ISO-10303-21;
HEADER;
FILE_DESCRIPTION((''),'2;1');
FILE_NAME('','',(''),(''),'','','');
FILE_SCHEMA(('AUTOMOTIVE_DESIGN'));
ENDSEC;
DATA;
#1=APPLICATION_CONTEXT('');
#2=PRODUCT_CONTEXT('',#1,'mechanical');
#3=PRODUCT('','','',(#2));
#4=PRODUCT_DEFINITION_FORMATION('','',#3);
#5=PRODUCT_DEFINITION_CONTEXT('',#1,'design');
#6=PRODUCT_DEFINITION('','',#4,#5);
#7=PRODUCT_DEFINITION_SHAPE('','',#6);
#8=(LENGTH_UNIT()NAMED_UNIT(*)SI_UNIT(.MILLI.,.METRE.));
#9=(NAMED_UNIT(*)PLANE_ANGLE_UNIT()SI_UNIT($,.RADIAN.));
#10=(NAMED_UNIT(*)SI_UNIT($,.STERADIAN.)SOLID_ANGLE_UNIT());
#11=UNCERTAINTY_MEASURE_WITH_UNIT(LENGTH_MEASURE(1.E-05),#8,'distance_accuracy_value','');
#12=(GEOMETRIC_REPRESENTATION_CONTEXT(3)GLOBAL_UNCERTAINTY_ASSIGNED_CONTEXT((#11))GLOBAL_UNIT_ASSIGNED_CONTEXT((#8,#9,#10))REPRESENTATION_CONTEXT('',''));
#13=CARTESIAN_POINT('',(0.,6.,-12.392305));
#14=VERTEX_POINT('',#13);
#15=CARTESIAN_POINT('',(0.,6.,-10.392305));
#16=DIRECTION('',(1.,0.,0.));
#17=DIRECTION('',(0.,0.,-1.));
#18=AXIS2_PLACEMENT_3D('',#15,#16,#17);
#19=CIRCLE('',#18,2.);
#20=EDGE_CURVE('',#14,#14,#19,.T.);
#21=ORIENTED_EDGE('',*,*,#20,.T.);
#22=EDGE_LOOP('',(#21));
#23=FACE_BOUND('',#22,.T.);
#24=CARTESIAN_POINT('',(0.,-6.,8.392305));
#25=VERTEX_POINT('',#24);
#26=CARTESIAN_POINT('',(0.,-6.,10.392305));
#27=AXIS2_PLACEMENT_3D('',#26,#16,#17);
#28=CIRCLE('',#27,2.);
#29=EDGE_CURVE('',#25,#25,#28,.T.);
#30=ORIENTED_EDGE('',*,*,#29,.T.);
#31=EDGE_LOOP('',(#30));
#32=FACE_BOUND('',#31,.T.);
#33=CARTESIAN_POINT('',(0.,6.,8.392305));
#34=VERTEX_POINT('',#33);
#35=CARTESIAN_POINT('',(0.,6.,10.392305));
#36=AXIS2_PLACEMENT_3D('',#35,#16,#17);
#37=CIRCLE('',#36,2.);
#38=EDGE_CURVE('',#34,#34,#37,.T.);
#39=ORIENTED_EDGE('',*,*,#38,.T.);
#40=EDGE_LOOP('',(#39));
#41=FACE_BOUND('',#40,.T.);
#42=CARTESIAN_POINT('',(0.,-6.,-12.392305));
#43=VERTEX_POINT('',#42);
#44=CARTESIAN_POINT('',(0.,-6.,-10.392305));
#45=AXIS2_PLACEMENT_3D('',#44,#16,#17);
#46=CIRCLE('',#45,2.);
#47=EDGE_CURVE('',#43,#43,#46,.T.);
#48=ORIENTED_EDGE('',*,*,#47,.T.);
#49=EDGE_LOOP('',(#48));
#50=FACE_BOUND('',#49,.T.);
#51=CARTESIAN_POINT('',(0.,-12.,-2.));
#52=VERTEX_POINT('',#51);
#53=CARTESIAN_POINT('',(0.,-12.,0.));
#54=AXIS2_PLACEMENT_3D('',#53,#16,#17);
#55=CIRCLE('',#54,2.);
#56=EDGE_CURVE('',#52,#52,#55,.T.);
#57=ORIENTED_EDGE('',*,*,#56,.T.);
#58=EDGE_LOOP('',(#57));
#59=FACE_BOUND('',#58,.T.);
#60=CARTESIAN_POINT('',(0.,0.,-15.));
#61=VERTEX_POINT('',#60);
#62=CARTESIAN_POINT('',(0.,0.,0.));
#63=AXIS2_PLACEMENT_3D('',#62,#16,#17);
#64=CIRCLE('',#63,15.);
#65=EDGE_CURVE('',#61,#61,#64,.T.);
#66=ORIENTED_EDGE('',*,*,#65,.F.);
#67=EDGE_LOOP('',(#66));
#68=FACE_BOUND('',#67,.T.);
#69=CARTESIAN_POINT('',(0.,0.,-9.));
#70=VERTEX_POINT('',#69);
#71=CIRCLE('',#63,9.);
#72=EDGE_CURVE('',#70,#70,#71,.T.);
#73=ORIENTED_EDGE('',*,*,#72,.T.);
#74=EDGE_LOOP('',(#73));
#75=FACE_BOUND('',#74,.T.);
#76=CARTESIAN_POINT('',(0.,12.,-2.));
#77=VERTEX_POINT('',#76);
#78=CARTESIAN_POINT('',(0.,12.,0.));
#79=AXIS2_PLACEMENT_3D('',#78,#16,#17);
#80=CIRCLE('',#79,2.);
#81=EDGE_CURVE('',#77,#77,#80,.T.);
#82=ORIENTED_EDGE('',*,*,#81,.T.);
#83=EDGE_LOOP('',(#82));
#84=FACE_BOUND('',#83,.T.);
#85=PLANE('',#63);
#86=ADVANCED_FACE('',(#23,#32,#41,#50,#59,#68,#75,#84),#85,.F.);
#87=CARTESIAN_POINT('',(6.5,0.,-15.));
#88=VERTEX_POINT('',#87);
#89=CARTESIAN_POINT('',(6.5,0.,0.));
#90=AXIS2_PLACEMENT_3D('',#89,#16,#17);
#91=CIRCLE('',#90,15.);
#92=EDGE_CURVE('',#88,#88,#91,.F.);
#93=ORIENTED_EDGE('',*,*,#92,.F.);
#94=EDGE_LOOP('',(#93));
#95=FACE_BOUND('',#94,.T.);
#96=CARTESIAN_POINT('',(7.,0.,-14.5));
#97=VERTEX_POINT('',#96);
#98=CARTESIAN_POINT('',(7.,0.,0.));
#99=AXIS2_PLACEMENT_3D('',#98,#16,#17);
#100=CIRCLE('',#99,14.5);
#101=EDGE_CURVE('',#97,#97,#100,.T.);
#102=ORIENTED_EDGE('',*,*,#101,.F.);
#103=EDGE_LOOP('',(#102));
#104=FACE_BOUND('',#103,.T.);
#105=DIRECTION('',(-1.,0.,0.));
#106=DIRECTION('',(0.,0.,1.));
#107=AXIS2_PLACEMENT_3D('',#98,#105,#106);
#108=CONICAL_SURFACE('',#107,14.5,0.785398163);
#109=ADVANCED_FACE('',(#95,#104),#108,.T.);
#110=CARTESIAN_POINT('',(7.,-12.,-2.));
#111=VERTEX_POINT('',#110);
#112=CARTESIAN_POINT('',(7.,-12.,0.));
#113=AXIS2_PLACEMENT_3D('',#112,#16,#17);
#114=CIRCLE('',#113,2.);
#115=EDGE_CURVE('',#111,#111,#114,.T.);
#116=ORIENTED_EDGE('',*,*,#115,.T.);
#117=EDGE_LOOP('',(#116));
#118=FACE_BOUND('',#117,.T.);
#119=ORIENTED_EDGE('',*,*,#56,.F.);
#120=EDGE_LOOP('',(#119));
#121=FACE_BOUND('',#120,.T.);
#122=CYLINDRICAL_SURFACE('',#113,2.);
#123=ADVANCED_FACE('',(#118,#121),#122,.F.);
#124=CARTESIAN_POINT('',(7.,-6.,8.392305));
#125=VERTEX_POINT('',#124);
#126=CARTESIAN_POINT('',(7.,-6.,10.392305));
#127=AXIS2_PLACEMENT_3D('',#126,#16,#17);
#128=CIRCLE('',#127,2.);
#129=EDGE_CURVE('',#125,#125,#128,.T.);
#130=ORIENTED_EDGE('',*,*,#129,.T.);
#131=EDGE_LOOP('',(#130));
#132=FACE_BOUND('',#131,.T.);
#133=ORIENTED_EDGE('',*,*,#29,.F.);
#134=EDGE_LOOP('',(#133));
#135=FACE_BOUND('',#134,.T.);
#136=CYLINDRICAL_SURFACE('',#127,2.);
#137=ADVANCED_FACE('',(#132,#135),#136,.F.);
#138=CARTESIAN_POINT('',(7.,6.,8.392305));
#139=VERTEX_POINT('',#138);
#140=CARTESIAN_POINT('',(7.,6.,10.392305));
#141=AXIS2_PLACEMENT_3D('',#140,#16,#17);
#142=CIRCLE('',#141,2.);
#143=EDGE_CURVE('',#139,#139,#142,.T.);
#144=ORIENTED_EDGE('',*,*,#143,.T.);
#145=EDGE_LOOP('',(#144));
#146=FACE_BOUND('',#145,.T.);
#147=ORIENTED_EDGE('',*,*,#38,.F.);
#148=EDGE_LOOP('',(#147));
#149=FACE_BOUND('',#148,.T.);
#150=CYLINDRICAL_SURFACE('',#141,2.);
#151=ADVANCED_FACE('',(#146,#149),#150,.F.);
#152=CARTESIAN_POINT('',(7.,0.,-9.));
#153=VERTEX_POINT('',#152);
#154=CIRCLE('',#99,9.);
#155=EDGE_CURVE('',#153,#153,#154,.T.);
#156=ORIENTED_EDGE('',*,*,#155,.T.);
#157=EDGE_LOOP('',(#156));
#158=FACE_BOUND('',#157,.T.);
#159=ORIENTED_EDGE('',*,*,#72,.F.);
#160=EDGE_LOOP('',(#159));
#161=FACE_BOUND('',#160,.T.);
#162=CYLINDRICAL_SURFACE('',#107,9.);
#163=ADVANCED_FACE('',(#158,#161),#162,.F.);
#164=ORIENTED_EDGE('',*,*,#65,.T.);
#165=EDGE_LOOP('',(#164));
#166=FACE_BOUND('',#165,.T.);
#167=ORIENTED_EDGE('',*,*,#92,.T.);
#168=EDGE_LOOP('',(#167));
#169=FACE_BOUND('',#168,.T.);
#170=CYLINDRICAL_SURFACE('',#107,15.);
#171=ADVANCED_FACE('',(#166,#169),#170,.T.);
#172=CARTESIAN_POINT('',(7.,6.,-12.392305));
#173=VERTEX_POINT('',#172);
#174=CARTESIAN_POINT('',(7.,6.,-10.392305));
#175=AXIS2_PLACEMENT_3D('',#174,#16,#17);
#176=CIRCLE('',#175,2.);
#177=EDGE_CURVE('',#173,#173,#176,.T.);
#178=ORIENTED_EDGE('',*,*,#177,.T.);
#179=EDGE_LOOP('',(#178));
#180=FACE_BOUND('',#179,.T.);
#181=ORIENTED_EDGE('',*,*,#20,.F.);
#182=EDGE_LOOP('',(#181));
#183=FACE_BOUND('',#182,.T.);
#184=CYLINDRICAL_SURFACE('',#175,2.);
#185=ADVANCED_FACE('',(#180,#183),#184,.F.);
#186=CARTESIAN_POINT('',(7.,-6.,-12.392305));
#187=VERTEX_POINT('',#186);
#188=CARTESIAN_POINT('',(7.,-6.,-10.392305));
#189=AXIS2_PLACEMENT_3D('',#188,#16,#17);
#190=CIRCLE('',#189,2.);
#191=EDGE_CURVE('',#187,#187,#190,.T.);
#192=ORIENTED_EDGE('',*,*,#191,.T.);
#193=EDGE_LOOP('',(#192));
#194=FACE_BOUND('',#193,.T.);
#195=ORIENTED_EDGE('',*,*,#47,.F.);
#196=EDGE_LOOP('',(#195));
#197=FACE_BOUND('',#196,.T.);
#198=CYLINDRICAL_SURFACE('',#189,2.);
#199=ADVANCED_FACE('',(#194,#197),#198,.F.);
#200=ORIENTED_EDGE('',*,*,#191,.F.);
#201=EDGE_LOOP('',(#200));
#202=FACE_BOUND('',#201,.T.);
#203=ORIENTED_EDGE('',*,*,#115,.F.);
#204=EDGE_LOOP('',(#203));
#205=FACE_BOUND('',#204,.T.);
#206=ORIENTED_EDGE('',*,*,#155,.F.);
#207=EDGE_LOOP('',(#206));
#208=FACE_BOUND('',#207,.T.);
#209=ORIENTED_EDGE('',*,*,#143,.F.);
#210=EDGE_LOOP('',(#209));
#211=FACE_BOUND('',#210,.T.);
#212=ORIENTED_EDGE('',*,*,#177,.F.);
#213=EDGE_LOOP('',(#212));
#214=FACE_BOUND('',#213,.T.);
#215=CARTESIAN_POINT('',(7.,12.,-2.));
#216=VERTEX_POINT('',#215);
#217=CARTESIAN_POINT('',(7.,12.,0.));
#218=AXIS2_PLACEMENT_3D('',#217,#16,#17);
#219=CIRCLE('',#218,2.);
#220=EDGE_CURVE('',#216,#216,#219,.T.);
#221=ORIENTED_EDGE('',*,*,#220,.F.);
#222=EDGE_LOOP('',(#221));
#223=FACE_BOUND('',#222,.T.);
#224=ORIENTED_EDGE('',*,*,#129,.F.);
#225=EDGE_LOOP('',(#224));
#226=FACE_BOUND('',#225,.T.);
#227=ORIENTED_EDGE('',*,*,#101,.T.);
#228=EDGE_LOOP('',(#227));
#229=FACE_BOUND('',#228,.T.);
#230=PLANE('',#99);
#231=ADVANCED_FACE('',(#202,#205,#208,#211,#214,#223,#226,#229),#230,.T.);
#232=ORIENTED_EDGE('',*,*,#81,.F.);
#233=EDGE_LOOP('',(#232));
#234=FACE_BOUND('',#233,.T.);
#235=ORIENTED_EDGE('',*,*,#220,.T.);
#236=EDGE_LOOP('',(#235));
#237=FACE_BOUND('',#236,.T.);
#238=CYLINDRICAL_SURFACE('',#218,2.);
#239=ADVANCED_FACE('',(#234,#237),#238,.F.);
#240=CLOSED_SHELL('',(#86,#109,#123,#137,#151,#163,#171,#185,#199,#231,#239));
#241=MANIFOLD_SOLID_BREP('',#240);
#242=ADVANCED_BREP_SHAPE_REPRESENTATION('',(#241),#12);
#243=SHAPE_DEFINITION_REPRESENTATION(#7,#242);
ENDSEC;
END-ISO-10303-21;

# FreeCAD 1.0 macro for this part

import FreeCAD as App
import Part
import Sketcher
Q = App.Units.Quantity


def edges_at(feature, points):
    """Names of the edges that pass closest to the given points."""
    edges = feature.Shape.Edges
    near = lambda p: min(range(len(edges)), key=lambda i: edges[i].distToShape(Part.Vertex(*p))[0])
    return sorted({f"Edge{near(p) + 1}" for p in points})

doc = App.newDocument("Part")
body = doc.addObject("PartDesign::Body", "Body")

# Sketch on YZ plane
sketch1 = body.newObject("Sketcher::SketchObject", "Sketch")
sketch1.AttachmentSupport = (doc.getObject("YZ_Plane"), [""])
sketch1.MapMode = "FlatFace"
sketch1.addGeometry([
    Part.Circle(App.Vector(0, 0, 0), App.Vector(0, 0, 1), 15),
    Part.Circle(App.Vector(0, 0, 0), App.Vector(0, 0, 1), 9),
], False)
sketch1.addConstraint([
    Sketcher.Constraint("Coincident", 0, 3, -1, 1),
    Sketcher.Constraint("Coincident", 1, 3, -1, 1),
    Sketcher.Constraint("Diameter", 0, 30.0),
    Sketcher.Constraint("Diameter", 1, 18.0),
])
pad1 = body.newObject("PartDesign::Pad", "Pad")
pad1.Profile = sketch1
pad1.Length = 7

# Sketch on XZ plane
sketch2 = body.newObject("Sketcher::SketchObject", "Sketch001")
sketch2.AttachmentSupport = (doc.getObject("XZ_Plane"), [""])
sketch2.MapMode = "FlatFace"
sketch2.AttachmentOffset = App.Placement(App.Vector(0, 0, -12), App.Rotation())
sketch2.addGeometry([
    Part.LineSegment(App.Vector(-44.201721, 0, 0), App.Vector(7, 0, 0)),
    Part.LineSegment(App.Vector(7, 0, 0), App.Vector(7, -2, 0)),
    Part.LineSegment(App.Vector(7, -2, 0), App.Vector(-43, -2, 0)),
    Part.LineSegment(App.Vector(-43, -2, 0), App.Vector(-44.201721, 0, 0)),
], False)
sketch2.addConstraint([
    Sketcher.Constraint("Coincident", 0, 2, 1, 1),
    Sketcher.Constraint("Coincident", 1, 2, 2, 1),
    Sketcher.Constraint("Coincident", 2, 2, 3, 1),
    Sketcher.Constraint("Coincident", 3, 2, 0, 1),
    Sketcher.Constraint("Horizontal", 0),
    Sketcher.Constraint("Vertical", 1),
    Sketcher.Constraint("Horizontal", 2),
    Sketcher.Constraint("PointOnObject", 0, 2, -1),
    Sketcher.Constraint("DistanceX", 2, 2, 2, 1, 50.0),
    Sketcher.Constraint("DistanceY", 1, 2, 1, 1, 2.0),
    Sketcher.Constraint("Angle", 3, Q("121 deg")),
    Sketcher.Constraint("DistanceX", -1, 1, 0, 2, 7.0),
])
groove = body.newObject("PartDesign::Groove", "Groove")
groove.Profile = sketch2
groove.ReferenceAxis = (sketch2, ["H_Axis"])
groove.Angle = 360
doc.recompute()

polarpattern = body.newObject("PartDesign::PolarPattern", "PolarPattern")
polarpattern.Originals = [groove]
polarpattern.Axis = (doc.getObject("X_Axis"), [""])
polarpattern.Angle = 360
polarpattern.Occurrences = 6
body.Tip = polarpattern
doc.recompute()

chamfer = body.newObject("PartDesign::Chamfer", "Chamfer")
chamfer.Base = (polarpattern, edges_at(polarpattern, [(7, 0, 15)]))
chamfer.Size = 0.5

doc.recompute()
